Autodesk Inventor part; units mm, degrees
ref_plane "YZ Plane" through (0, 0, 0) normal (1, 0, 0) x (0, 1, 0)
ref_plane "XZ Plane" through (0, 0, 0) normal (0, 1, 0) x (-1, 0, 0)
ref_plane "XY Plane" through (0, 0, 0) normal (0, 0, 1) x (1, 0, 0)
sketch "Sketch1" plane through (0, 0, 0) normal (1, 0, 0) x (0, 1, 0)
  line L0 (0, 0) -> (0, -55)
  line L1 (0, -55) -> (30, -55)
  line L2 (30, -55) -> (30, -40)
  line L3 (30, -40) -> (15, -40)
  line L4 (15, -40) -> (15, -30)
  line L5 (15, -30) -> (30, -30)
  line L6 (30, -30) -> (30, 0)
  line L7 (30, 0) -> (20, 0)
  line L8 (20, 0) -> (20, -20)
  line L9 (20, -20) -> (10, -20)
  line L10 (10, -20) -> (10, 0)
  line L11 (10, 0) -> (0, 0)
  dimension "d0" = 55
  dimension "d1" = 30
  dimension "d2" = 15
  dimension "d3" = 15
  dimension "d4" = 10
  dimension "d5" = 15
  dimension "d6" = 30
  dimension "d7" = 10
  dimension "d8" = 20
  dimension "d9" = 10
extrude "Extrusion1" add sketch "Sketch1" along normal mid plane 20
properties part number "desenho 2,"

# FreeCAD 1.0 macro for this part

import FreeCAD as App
import Part
import Sketcher
Q = App.Units.Quantity

doc = App.newDocument("Part")
body = doc.addObject("PartDesign::Body", "Body")

# Sketch on YZ plane
sketch1 = body.newObject("Sketcher::SketchObject", "Sketch")
sketch1.AttachmentSupport = (doc.getObject("YZ_Plane"), [""])
sketch1.MapMode = "FlatFace"
sketch1.addGeometry([
    Part.LineSegment(App.Vector(10, 0, 0), App.Vector(0, 0, 0)),  # 0
    Part.LineSegment(App.Vector(0, 0, 0), App.Vector(0, -55, 0)),  # 1
    Part.LineSegment(App.Vector(0, -55, 0), App.Vector(30, -55, 0)),  # 2
    Part.LineSegment(App.Vector(30, -55, 0), App.Vector(30, -40, 0)),  # 3
    Part.LineSegment(App.Vector(30, -40, 0), App.Vector(15, -40, 0)),  # 4
    Part.LineSegment(App.Vector(15, -40, 0), App.Vector(15, -30, 0)),  # 5
    Part.LineSegment(App.Vector(15, -30, 0), App.Vector(30, -30, 0)),  # 6
    Part.LineSegment(App.Vector(30, -30, 0), App.Vector(30, 0, 0)),  # 7
    Part.LineSegment(App.Vector(30, 0, 0), App.Vector(20, 0, 0)),  # 8
    Part.LineSegment(App.Vector(20, 0, 0), App.Vector(20, -20, 0)),  # 9
    Part.LineSegment(App.Vector(20, -20, 0), App.Vector(10, -20, 0)),  # 10
    Part.LineSegment(App.Vector(10, -20, 0), App.Vector(10, 0, 0)),  # 11
], False)
sketch1.addConstraint([
    Sketcher.Constraint("Coincident", 0, 2, 1, 1),
    Sketcher.Constraint("Coincident", 1, 2, 2, 1),
    Sketcher.Constraint("Coincident", 2, 2, 3, 1),
    Sketcher.Constraint("Coincident", 3, 2, 4, 1),
    Sketcher.Constraint("Coincident", 4, 2, 5, 1),
    Sketcher.Constraint("Coincident", 5, 2, 6, 1),
    Sketcher.Constraint("Coincident", 6, 2, 7, 1),
    Sketcher.Constraint("Coincident", 7, 2, 8, 1),
    Sketcher.Constraint("Coincident", 8, 2, 9, 1),
    Sketcher.Constraint("Coincident", 9, 2, 10, 1),
    Sketcher.Constraint("Coincident", 10, 2, 11, 1),
    Sketcher.Constraint("Coincident", 11, 2, 0, 1),
    Sketcher.Constraint("Horizontal", 0),
    Sketcher.Constraint("Vertical", 1),
    Sketcher.Constraint("Horizontal", 2),
    Sketcher.Constraint("Vertical", 3),
    Sketcher.Constraint("Horizontal", 4),
    Sketcher.Constraint("Vertical", 5),
    Sketcher.Constraint("Horizontal", 6),
    Sketcher.Constraint("Vertical", 7),
    Sketcher.Constraint("Horizontal", 8),
    Sketcher.Constraint("Vertical", 9),
    Sketcher.Constraint("Horizontal", 10),
    Sketcher.Constraint("Vertical", 11),
    Sketcher.Constraint("Coincident", 0, 2, -1, 1),
    Sketcher.Constraint("PointOnObject", 7, 2, -1),
    Sketcher.Constraint("Vertical", 3, 2, 6, 2),
    Sketcher.Constraint("Equal", 0, 8),
    Sketcher.Constraint("Equal", 8, 10),
    Sketcher.Constraint("Equal", 6, 3),
    Sketcher.Constraint("Equal", 10, 5),
    Sketcher.Constraint("Equal", 2, 7),
    Sketcher.Constraint("DistanceX", 0, 2, 0, 1, Q("10 mm")),
    Sketcher.Constraint("DistanceX", 4, 2, 4, 1, Q("15 mm")),
    Sketcher.Constraint("DistanceY", 9, 2, 9, 1, Q("20 mm")),
])
pad1 = body.newObject("PartDesign::Pad", "Pad")
pad1.Profile = sketch1
pad1.Length = 20
pad1.Midplane = True

doc.recompute()
